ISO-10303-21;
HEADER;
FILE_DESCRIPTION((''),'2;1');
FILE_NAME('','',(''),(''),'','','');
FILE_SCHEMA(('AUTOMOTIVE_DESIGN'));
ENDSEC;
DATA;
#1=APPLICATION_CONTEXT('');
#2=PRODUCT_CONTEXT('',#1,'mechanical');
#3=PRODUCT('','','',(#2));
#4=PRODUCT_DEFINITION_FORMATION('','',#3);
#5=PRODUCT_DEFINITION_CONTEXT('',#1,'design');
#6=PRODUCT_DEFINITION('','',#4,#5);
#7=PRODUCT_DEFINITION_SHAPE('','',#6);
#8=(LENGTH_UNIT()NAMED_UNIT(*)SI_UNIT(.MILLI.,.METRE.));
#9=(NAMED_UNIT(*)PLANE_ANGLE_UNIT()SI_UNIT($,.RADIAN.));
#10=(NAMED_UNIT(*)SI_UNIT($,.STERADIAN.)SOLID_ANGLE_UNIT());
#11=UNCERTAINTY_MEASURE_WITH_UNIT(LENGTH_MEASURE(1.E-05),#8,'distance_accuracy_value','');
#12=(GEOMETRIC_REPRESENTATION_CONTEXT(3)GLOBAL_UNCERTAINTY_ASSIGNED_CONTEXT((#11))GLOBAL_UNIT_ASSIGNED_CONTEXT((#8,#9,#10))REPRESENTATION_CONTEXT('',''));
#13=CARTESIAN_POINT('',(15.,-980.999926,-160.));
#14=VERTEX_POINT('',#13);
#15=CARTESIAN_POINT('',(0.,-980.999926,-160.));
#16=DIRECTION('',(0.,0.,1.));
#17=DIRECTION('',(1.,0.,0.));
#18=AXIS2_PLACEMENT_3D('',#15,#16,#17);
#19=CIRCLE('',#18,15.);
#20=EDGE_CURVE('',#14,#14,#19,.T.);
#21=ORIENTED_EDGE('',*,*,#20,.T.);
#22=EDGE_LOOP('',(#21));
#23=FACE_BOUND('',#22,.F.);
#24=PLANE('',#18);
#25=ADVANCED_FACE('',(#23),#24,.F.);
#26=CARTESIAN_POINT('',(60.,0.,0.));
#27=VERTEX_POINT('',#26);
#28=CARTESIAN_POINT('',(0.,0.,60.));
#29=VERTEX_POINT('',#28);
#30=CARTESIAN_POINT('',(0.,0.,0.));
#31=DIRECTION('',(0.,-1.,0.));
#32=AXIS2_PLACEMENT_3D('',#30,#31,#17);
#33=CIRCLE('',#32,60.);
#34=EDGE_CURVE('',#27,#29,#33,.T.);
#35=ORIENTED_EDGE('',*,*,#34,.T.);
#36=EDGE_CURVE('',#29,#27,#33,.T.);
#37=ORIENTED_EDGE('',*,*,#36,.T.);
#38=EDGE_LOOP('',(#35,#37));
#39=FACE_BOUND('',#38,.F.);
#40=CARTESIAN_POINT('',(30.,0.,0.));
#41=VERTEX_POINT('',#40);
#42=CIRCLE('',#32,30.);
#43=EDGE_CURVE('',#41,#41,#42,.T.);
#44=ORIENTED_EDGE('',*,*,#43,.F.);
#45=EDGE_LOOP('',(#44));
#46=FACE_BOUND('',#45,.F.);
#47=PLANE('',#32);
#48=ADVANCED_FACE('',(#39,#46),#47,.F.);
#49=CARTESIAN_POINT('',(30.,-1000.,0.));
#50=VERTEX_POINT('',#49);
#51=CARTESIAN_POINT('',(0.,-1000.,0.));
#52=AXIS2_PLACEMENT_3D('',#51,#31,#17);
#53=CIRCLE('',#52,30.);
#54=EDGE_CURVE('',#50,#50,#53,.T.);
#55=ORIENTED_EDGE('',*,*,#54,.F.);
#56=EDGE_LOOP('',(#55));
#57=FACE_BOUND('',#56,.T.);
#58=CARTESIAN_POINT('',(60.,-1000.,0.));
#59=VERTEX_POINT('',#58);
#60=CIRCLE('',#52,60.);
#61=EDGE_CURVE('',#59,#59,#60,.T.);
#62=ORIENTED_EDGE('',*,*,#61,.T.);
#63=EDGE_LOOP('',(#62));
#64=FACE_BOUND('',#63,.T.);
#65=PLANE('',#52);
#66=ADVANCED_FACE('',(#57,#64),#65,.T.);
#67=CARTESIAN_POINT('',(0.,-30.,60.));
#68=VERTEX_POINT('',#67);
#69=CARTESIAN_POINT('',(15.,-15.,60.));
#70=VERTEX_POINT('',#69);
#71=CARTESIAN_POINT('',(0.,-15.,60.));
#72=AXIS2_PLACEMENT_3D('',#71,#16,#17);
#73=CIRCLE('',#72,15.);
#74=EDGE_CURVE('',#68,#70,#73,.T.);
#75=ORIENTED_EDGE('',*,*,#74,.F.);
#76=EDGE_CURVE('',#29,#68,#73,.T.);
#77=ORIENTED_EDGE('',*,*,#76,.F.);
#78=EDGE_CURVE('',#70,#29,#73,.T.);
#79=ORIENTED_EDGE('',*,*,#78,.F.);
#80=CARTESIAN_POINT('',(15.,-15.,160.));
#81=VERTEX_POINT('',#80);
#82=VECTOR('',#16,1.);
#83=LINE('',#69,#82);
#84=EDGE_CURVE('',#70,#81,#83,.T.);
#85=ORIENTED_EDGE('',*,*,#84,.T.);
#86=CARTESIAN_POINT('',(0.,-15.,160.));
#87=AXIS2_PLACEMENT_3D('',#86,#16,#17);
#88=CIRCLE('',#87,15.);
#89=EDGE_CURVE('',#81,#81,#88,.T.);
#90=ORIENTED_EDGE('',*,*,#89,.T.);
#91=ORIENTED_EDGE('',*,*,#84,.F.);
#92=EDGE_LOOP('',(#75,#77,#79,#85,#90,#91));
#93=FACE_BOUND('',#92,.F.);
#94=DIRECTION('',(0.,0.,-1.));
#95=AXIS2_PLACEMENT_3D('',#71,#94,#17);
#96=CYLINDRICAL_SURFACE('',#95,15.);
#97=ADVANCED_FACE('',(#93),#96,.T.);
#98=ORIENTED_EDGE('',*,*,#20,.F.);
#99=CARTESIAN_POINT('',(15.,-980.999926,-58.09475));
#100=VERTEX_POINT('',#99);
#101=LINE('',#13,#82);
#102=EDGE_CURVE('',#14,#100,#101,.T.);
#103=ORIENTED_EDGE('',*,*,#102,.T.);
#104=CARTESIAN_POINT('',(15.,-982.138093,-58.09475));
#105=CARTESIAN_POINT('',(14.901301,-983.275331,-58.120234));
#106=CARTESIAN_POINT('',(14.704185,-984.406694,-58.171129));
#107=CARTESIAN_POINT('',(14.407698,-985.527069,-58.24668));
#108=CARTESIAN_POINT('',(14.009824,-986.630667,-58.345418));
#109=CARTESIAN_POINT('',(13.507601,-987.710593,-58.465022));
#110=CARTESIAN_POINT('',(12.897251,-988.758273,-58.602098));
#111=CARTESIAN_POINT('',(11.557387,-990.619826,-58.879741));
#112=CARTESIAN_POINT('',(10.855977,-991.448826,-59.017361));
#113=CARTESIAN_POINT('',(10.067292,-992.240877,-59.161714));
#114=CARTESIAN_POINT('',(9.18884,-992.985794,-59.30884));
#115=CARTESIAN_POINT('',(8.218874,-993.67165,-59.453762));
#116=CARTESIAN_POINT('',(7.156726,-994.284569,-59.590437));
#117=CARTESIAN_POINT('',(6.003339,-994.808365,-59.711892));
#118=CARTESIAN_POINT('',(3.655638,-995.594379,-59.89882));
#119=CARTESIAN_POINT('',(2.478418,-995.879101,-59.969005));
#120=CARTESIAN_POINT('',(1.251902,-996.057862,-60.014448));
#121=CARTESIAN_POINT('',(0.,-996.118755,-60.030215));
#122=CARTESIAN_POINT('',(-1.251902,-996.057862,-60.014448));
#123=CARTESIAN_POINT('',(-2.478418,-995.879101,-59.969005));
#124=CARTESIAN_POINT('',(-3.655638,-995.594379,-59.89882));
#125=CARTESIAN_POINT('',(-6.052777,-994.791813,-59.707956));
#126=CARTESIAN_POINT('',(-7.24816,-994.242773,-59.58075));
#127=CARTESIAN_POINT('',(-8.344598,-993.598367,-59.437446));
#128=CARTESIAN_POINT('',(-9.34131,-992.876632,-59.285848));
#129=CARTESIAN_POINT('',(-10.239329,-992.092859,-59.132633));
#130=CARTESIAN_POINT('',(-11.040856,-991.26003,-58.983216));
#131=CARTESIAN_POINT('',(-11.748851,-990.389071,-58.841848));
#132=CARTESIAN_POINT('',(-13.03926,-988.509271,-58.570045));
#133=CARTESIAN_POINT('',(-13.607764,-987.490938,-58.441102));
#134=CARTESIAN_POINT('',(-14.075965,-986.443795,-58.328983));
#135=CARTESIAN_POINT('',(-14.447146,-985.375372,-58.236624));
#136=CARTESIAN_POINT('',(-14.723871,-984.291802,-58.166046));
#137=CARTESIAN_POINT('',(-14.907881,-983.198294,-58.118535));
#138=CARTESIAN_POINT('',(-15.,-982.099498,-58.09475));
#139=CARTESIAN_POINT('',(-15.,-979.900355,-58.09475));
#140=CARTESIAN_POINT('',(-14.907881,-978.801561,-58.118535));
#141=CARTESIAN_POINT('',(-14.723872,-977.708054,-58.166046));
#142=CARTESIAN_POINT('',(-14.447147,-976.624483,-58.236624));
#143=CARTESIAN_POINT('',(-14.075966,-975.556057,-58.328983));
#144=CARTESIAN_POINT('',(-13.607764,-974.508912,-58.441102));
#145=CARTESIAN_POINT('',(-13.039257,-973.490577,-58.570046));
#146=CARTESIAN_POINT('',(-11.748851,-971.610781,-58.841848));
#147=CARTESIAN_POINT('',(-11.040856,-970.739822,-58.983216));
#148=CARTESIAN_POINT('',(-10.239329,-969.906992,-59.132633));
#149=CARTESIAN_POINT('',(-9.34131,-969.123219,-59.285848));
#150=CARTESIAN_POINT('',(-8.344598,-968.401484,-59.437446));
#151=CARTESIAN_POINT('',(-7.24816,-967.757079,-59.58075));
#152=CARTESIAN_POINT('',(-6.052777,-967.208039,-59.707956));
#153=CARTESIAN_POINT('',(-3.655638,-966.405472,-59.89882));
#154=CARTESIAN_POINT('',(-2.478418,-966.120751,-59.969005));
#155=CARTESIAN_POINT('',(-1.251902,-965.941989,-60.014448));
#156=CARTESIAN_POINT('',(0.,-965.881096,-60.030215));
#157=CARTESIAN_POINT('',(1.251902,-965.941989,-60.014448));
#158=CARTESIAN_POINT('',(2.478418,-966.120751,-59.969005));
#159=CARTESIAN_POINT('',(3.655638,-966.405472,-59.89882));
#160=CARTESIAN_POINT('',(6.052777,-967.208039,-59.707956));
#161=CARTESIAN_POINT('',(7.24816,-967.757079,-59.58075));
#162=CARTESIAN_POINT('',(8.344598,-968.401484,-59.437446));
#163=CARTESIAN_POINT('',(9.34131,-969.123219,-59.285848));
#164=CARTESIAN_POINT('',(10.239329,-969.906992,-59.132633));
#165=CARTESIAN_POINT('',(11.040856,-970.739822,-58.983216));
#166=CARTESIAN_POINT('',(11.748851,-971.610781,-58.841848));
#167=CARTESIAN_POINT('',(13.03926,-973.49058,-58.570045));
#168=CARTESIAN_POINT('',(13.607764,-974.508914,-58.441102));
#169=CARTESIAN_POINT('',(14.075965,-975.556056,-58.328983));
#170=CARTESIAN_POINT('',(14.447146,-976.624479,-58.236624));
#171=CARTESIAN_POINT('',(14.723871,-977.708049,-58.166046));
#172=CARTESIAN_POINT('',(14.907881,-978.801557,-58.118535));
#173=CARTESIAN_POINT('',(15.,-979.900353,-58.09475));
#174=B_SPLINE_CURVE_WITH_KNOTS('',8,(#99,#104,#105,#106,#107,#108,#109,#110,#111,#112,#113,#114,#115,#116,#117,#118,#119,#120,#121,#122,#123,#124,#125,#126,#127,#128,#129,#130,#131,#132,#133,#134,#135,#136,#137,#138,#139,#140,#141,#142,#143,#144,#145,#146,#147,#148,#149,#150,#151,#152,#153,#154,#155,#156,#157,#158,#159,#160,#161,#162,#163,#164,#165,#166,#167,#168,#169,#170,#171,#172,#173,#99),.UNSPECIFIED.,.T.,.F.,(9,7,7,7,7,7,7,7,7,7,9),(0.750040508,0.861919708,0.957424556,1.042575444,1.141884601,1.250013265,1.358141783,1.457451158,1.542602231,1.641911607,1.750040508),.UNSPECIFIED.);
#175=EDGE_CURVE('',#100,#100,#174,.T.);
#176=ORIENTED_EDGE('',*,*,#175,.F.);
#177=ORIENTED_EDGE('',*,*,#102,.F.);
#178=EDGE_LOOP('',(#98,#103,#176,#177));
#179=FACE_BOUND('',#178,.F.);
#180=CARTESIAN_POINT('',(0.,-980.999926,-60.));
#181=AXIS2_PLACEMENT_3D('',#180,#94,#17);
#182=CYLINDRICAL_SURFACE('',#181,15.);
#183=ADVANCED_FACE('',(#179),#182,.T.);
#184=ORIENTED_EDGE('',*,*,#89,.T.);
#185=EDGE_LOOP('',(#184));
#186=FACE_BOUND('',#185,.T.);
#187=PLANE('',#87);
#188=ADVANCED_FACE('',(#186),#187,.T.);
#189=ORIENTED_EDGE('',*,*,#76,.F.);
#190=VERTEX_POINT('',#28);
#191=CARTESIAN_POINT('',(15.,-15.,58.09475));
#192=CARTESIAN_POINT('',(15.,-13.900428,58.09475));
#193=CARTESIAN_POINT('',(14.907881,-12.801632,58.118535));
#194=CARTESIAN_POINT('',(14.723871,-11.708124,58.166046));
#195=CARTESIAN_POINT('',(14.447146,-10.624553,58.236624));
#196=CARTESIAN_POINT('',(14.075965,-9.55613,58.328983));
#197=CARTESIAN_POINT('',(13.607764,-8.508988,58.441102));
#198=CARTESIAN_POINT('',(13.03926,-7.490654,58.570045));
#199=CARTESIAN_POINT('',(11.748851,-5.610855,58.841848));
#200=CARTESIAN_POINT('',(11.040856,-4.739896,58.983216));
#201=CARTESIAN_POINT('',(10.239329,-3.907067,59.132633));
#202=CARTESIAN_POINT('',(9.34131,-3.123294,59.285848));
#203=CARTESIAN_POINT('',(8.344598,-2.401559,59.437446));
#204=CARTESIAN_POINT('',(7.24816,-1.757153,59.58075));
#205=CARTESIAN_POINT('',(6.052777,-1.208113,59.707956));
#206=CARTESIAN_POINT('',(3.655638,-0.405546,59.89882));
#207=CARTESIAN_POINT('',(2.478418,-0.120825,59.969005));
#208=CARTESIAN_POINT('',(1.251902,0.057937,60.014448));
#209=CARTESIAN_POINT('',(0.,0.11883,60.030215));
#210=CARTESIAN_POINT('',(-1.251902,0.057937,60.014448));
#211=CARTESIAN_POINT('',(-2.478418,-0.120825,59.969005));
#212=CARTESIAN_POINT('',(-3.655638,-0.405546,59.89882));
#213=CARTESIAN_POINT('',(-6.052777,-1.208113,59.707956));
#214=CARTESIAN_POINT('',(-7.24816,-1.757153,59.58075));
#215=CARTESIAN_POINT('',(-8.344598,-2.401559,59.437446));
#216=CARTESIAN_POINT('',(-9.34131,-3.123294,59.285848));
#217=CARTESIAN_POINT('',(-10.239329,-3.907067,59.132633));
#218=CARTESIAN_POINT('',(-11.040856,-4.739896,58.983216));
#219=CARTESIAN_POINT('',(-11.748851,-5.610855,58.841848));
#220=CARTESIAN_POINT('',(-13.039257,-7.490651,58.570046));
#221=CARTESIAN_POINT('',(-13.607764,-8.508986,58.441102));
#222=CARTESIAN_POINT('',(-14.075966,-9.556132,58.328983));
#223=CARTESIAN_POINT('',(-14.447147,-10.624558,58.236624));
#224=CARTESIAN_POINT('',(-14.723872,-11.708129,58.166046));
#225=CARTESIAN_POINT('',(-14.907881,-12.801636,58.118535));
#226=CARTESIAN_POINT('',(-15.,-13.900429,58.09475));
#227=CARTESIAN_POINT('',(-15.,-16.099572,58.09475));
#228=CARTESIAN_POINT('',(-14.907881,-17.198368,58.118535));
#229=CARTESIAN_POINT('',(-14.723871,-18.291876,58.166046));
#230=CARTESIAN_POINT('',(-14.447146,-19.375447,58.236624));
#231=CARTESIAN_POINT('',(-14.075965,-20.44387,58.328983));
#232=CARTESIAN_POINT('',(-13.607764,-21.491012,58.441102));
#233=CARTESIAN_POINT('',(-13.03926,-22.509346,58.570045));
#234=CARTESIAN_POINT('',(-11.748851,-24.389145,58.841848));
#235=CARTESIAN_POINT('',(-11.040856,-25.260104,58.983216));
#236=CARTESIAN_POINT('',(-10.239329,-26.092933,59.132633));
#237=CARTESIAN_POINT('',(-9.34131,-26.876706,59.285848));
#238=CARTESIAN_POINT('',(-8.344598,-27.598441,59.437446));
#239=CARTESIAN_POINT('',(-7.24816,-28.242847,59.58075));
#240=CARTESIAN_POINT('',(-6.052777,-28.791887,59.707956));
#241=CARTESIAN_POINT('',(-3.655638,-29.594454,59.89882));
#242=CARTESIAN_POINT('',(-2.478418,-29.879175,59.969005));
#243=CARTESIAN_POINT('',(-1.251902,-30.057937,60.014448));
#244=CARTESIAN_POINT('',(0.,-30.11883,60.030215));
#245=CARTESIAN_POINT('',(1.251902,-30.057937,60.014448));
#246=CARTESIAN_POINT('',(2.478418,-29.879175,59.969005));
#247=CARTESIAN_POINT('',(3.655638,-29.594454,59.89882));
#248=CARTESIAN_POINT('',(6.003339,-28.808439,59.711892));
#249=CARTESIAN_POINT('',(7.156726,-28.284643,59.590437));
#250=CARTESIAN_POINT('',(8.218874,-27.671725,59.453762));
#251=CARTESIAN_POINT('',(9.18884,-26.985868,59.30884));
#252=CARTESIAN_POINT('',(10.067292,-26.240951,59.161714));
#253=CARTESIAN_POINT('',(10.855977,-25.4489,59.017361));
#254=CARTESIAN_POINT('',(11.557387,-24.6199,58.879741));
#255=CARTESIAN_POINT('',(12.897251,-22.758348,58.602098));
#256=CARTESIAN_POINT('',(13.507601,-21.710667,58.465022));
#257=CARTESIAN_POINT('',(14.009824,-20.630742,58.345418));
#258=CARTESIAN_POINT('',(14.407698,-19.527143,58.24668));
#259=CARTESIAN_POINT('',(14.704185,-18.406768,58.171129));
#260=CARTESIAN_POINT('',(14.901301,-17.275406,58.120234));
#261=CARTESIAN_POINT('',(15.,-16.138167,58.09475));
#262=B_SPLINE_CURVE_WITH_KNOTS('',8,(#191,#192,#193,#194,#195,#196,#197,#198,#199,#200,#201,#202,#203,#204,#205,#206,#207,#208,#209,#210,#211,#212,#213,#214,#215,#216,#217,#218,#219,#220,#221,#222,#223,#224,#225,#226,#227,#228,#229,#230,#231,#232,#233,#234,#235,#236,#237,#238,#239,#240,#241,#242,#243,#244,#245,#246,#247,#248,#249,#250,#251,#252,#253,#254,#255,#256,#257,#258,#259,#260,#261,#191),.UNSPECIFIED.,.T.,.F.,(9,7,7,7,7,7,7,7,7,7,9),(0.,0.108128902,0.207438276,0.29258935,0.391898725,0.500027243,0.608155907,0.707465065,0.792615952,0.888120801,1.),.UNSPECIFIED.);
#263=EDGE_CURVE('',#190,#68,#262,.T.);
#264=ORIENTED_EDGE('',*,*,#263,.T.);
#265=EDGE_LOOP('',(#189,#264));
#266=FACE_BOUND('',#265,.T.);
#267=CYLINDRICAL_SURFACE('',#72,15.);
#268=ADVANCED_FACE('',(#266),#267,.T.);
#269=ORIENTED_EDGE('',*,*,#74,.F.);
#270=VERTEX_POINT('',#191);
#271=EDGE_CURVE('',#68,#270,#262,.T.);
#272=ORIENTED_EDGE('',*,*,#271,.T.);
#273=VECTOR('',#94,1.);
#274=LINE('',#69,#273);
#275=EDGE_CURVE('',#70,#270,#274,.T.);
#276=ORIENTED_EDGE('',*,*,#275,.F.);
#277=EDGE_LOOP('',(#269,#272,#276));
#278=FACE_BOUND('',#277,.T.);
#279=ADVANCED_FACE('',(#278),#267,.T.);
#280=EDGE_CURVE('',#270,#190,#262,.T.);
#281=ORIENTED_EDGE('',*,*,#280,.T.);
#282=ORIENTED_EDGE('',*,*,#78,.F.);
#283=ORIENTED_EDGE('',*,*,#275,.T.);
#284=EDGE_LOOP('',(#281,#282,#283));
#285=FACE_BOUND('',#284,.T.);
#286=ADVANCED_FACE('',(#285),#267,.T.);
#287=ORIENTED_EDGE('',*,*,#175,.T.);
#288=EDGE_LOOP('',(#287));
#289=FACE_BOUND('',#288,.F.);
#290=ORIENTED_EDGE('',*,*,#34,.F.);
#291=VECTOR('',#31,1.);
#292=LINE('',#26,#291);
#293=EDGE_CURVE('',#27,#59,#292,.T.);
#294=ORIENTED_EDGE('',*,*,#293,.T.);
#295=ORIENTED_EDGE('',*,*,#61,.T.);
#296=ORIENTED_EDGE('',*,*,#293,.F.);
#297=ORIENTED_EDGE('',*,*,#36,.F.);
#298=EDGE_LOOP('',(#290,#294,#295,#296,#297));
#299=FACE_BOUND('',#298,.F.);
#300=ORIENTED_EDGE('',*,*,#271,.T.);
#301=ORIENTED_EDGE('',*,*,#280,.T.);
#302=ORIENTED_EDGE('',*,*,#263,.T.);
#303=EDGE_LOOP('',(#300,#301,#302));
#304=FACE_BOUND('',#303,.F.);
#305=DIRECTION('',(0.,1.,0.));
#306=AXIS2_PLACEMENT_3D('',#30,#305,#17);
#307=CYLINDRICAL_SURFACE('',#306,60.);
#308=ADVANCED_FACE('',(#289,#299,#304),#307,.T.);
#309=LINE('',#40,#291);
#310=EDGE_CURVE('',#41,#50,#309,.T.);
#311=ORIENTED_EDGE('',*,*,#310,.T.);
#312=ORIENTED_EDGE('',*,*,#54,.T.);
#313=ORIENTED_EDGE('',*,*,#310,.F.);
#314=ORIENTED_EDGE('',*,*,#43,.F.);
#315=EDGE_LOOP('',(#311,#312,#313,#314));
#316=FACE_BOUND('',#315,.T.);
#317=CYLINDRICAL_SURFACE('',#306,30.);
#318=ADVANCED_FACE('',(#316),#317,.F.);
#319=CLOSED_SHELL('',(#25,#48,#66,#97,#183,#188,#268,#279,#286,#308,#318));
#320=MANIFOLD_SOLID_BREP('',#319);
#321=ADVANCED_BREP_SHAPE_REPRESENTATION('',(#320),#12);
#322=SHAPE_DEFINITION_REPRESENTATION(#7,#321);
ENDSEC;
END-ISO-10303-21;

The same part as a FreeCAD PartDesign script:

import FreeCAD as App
import Part
import Sketcher

V = App.Vector

doc = App.newDocument("Part")
body = doc.addObject("PartDesign::Body", "Body")

# Sketch on XZ plane
sketch1 = body.newObject("Sketcher::SketchObject", "Sketch")
sketch1.AttachmentSupport = (doc.getObject("XZ_Plane"), [""])
sketch1.MapMode = "FlatFace"
sketch1.addGeometry([
    Part.Circle(V(0, 0, 0), V(0, 0, 1), 60),
    Part.Circle(V(0, 0, 0), V(0, 0, 1), 30),
], False)
sketch1.addConstraint([
    Sketcher.Constraint("Coincident", 0, 3, -1, 1),
    Sketcher.Constraint("Coincident", 1, 3, -1, 1),
    Sketcher.Constraint("Diameter", 0, 120.0),
    Sketcher.Constraint("Diameter", 1, 60.0),
])
pad1 = body.newObject("PartDesign::Pad", "Pad")
pad1.Profile = sketch1
pad1.Length = 1000

# Sketch on XY plane
sketch2 = body.newObject("Sketcher::SketchObject", "Sketch001")
sketch2.AttachmentSupport = (doc.getObject("XY_Plane"), [""])
sketch2.MapMode = "FlatFace"
sketch2.AttachmentOffset = App.Placement(V(0, 0, 60), App.Rotation())
sketch2.addGeometry(Part.Circle(V(0, -15, 0), V(0, 0, 1), 15), False)
sketch2.addConstraint([
    Sketcher.Constraint("PointOnObject", 0, 3, -2),
    Sketcher.Constraint("Diameter", 0, 30.0),
    Sketcher.Constraint("DistanceY", 0, 3, -1, 1, 15.0),
])
pad2 = body.newObject("PartDesign::Pad", "Pad001")
pad2.Profile = sketch2
pad2.Type = "TwoLengths"
pad2.Length = 100
pad2.Length2 = 7

# Sketch on XY plane
sketch3 = body.newObject("Sketcher::SketchObject", "Sketch002")
sketch3.AttachmentSupport = (doc.getObject("XY_Plane"), [""])
sketch3.MapMode = "FlatFace"
sketch3.AttachmentOffset = App.Placement(V(0, 0, -60), App.Rotation())
sketch3.addGeometry(Part.Circle(V(0, -980.999926, 0), V(0, 0, 1), 15), False)
sketch3.addConstraint([
    Sketcher.Constraint("PointOnObject", 0, 3, -2),
    Sketcher.Constraint("Diameter", 0, 30.0),
    Sketcher.Constraint("DistanceY", 0, 3, -1, 1, 980.999926),
])
pad3 = body.newObject("PartDesign::Pad", "Pad002")
pad3.Profile = sketch3
pad3.Type = "TwoLengths"
pad3.Length = 100
pad3.Length2 = 7
pad3.Reversed = True

doc.recompute()
